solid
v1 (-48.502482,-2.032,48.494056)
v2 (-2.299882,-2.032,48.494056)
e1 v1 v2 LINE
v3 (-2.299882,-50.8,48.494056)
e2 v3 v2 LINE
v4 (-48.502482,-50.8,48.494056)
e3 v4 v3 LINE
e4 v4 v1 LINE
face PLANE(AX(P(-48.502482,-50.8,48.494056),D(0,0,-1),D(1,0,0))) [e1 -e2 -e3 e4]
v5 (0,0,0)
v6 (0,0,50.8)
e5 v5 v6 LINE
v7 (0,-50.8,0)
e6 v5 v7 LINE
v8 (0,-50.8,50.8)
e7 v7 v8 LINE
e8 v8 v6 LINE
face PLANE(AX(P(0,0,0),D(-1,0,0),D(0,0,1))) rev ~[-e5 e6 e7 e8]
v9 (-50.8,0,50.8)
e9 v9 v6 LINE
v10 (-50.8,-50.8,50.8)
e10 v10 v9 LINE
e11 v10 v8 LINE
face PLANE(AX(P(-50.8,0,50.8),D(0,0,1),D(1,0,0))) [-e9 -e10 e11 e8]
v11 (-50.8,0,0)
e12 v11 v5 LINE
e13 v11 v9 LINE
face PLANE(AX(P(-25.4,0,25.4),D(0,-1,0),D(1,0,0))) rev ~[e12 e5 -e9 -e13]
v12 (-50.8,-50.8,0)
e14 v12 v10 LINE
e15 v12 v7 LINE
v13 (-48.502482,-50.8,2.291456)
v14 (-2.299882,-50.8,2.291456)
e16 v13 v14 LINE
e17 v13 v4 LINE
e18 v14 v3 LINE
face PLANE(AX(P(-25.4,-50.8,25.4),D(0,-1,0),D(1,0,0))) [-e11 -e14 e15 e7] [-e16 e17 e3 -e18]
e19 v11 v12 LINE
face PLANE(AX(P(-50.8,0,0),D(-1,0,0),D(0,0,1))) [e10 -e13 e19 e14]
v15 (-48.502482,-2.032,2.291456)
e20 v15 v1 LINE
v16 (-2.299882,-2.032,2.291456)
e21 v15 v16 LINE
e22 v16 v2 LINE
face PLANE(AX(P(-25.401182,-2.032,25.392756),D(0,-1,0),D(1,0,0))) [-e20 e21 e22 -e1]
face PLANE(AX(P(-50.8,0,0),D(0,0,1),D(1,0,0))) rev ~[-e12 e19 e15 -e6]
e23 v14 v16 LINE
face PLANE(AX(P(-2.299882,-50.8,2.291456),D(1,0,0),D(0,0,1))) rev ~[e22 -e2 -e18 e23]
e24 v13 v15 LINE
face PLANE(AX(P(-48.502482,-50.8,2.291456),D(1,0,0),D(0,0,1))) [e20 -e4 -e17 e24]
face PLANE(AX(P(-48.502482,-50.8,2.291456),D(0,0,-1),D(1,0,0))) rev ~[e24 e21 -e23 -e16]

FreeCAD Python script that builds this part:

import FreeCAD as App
import Part
import Sketcher

V = App.Vector
Q = App.Units.Quantity


def add_polygon(sketch, points):
    """Adds a closed chain of lines whose ends are joined by coincident constraints."""
    first, n = sketch.GeometryCount, len(points)
    for a, b in zip(points, points[1:] + points[:1]):
        sketch.addGeometry(Part.LineSegment(App.Vector(*a, 0), App.Vector(*b, 0)), False)
    for i in range(n):
        sketch.addConstraint(Sketcher.Constraint("Coincident", first + i, 2, first + (i + 1) % n, 1))

doc = App.newDocument("Part")
params = doc.addObject("Spreadsheet::Sheet", "Params")
for row, (alias, value) in enumerate([
    ("sketch1_width", "2 in"),
    ("pad1_length", "2 in"),
    ("sketch2_width", "2 in"),
    ("sketch2_width2", "1.857 in"),
    ("sketch2_height", "1.849 in"),
    ("pad2_length", "1.95 in"),
    ("sketch3_width", "1.819 in"),
    ("pocket1_length", "1.92 in"),
], start=1):
    params.set(f"A{row}", alias)
    params.set(f"B{row}", "=" + value)
    params.setAlias(f"B{row}", alias)

body = doc.addObject("PartDesign::Body", "Body")

sketch1 = body.newObject("Sketcher::SketchObject", "Sketch")
sketch1.AttachmentSupport = (doc.getObject("XZ_Plane"), [""])
sketch1.MapMode = "FlatFace"
add_polygon(sketch1, [(-51, 51), (-51, 0), (0, 0), (0, 51)])
sketch1.addConstraint([
    Sketcher.Constraint("Vertical", 0),
    Sketcher.Constraint("Horizontal", 1),
    Sketcher.Constraint("Vertical", 2),
    Sketcher.Constraint("Horizontal", 3),
    Sketcher.Constraint("Coincident", 1, 2, -1, 1),
    Sketcher.Constraint("Equal", 3, 0),
    Sketcher.Constraint("DistanceX", 1, 1, 1, 2, Q("2 in")),
])
sketch1.setExpression("Constraints[10]", "Params.sketch1_width")
pad1 = body.newObject("PartDesign::Pad", "Pad")
pad1.Profile = sketch1
pad1.setExpression("Length", "Params.pad1_length")

sketch2 = body.newObject("Sketcher::SketchObject", "Sketch001")
sketch2.AttachmentSupport = (doc.getObject("XZ_Plane"), [""])
sketch2.MapMode = "FlatFace"
sketch2.AttachmentOffset = App.Placement(V(0, 0, 2 * 25.4), App.Rotation())
add_polygon(sketch2, [(-51, 51), (-51, 0), (0, 0), (0, 51)])
add_polygon(sketch2, [(-2, 2), (-49, 2), (-49, 49), (-2, 49)])
sketch2.addConstraint([
    Sketcher.Constraint("Vertical", 0),
    Sketcher.Constraint("Horizontal", 1),
    Sketcher.Constraint("Vertical", 2),
    Sketcher.Constraint("Horizontal", 3),
    Sketcher.Constraint("Horizontal", 4),
    Sketcher.Constraint("Vertical", 5),
    Sketcher.Constraint("Horizontal", 6),
    Sketcher.Constraint("Vertical", 7),
    Sketcher.Constraint("Coincident", 1, 2, -1, 1),
    Sketcher.Constraint("Equal", 3, 0),
    Sketcher.Constraint("DistanceX", 1, 1, 1, 2, Q("2 in")),
    Sketcher.Constraint("DistanceX", 4, 2, 4, 1, Q("1.857 in")),
    Sketcher.Constraint("DistanceY", 5, 1, 5, 2, Q("1.849 in")),
    Sketcher.Constraint("DistanceX", 6, 2, -1, 1, Q("1.718592 mm")),
    Sketcher.Constraint("DistanceY", -1, 1, 4, 2, Q("1.909547 mm")),
])
sketch2.setExpression("Constraints[18]", "Params.sketch2_width")
sketch2.setExpression("Constraints[19]", "Params.sketch2_width2")
sketch2.setExpression("Constraints[20]", "Params.sketch2_height")
pad2 = body.newObject("PartDesign::Pad", "Pad001")
pad2.Profile = sketch2
pad2.setExpression("Length", "Params.pad2_length")
pad2.Reversed = True

sketch3 = body.newObject("Sketcher::SketchObject", "Sketch002")
sketch3.AttachmentSupport = (doc.getObject("XZ_Plane"), [""])
sketch3.MapMode = "FlatFace"
sketch3.AttachmentOffset = App.Placement(V(0, 0, 2 * 25.4), App.Rotation())
add_polygon(sketch3, [(-49, 48), (-49, 2), (-2, 2), (-2, 48)])
sketch3.addConstraint([
    Sketcher.Constraint("Vertical", 0),
    Sketcher.Constraint("Horizontal", 1),
    Sketcher.Constraint("Vertical", 2),
    Sketcher.Constraint("Horizontal", 3),
    Sketcher.Constraint("Equal", 3, 0),
    Sketcher.Constraint("DistanceX", 1, 1, 1, 2, Q("1.819 in")),
    Sketcher.Constraint("DistanceX", 0, 2, -1, 1, Q("48.502482 mm")),
    Sketcher.Constraint("DistanceY", -1, 1, 0, 2, Q("2.291456 mm")),
])
sketch3.setExpression("Constraints[9]", "Params.sketch3_width")
pocket1 = body.newObject("PartDesign::Pocket", "Pocket")
pocket1.Profile = sketch3
pocket1.setExpression("Length", "Params.pocket1_length")

doc.recompute()
